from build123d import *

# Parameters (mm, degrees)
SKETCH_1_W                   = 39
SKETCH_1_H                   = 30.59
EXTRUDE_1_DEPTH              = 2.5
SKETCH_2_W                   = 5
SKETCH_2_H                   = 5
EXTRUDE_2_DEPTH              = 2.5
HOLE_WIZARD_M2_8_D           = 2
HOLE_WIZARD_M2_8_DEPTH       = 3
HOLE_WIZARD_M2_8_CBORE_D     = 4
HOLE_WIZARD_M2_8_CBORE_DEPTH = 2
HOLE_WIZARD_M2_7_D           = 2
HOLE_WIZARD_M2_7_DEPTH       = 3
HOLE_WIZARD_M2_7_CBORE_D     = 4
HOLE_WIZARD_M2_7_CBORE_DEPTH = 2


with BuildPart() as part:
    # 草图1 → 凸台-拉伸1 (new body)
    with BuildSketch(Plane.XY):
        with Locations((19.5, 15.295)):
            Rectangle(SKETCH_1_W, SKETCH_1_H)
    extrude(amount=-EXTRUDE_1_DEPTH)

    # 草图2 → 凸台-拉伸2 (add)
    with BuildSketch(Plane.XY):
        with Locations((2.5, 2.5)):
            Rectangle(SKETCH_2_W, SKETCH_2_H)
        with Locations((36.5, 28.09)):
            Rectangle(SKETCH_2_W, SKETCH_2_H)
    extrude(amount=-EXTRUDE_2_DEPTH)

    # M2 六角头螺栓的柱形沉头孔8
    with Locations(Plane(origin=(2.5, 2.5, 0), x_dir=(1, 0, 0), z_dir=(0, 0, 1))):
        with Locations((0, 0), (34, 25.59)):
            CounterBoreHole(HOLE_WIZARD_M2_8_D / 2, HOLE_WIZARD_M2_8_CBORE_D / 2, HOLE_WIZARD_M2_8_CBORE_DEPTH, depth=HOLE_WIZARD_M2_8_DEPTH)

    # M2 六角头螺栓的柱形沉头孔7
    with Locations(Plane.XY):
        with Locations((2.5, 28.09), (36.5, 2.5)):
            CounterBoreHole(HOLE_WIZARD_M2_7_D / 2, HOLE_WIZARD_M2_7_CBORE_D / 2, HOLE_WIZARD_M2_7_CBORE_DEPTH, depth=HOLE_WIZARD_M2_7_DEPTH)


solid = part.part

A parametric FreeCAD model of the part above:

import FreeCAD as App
import Part
import Sketcher
from FreeCAD import Vector
Q = App.Units.Quantity

doc = App.newDocument("Part")
body = doc.addObject("PartDesign::Body", "Body")

# Sketch on XY plane
sketch1 = body.newObject("Sketcher::SketchObject", "Sketch")
sketch1.AttachmentSupport = (doc.getObject("XY_Plane"), [""])
sketch1.MapMode = "FlatFace"
sketch1.addGeometry([
    Part.LineSegment(Vector(0, 31, 0), Vector(0, 0, 0)),
    Part.LineSegment(Vector(0, 0, 0), Vector(39, 0, 0)),
    Part.LineSegment(Vector(39, 0, 0), Vector(39, 31, 0)),
    Part.LineSegment(Vector(39, 31, 0), Vector(0, 31, 0)),
], False)
sketch1.addConstraint([
    Sketcher.Constraint("Coincident", 0, 2, 1, 1),
    Sketcher.Constraint("Coincident", 1, 2, 2, 1),
    Sketcher.Constraint("Coincident", 2, 2, 3, 1),
    Sketcher.Constraint("Coincident", 3, 2, 0, 1),
    Sketcher.Constraint("Vertical", 0),
    Sketcher.Constraint("Horizontal", 1),
    Sketcher.Constraint("Vertical", 2),
    Sketcher.Constraint("Horizontal", 3),
    Sketcher.Constraint("Coincident", 0, 2, -1, 1),
    Sketcher.Constraint("DistanceX", 1, 1, 1, 2, Q("39 mm")),
    Sketcher.Constraint("DistanceY", 0, 2, 0, 1, Q("30.59 mm")),
])
pad1 = body.newObject("PartDesign::Pad", "Pad")
pad1.Profile = sketch1
pad1.Length = 2.5
pad1.Reversed = True

# Sketch on XY plane
sketch2 = body.newObject("Sketcher::SketchObject", "Sketch001")
sketch2.AttachmentSupport = (doc.getObject("XY_Plane"), [""])
sketch2.MapMode = "FlatFace"
sketch2.addGeometry([
    Part.LineSegment(Vector(0, 5, 0), Vector(0, 0, 0)),  # 0
    Part.LineSegment(Vector(0, 0, 0), Vector(5, 0, 0)),  # 1
    Part.LineSegment(Vector(5, 0, 0), Vector(5, 5, 0)),  # 2
    Part.LineSegment(Vector(5, 5, 0), Vector(0, 5, 0)),  # 3
    Part.LineSegment(Vector(34, 31, 0), Vector(34, 26, 0)),  # 4
    Part.LineSegment(Vector(34, 26, 0), Vector(39, 26, 0)),  # 5
    Part.LineSegment(Vector(39, 26, 0), Vector(39, 31, 0)),  # 6
    Part.LineSegment(Vector(39, 31, 0), Vector(34, 31, 0)),  # 7
], False)
sketch2.addConstraint([
    Sketcher.Constraint("Coincident", 0, 2, 1, 1),
    Sketcher.Constraint("Coincident", 1, 2, 2, 1),
    Sketcher.Constraint("Coincident", 2, 2, 3, 1),
    Sketcher.Constraint("Coincident", 3, 2, 0, 1),
    Sketcher.Constraint("Coincident", 4, 2, 5, 1),
    Sketcher.Constraint("Coincident", 5, 2, 6, 1),
    Sketcher.Constraint("Coincident", 6, 2, 7, 1),
    Sketcher.Constraint("Coincident", 7, 2, 4, 1),
    Sketcher.Constraint("Vertical", 0),
    Sketcher.Constraint("Horizontal", 1),
    Sketcher.Constraint("Vertical", 2),
    Sketcher.Constraint("Horizontal", 3),
    Sketcher.Constraint("Vertical", 4),
    Sketcher.Constraint("Horizontal", 5),
    Sketcher.Constraint("Vertical", 6),
    Sketcher.Constraint("Horizontal", 7),
    Sketcher.Constraint("Coincident", 0, 2, -1, 1),
    Sketcher.Constraint("Equal", 3, 5),
    Sketcher.Constraint("Equal", 7, 0),
    Sketcher.Constraint("Equal", 2, 4),
    Sketcher.Constraint("DistanceX", 1, 1, 1, 2, Q("5 mm")),
    Sketcher.Constraint("DistanceX", -1, 1, 4, 2, Q("34 mm")),
    Sketcher.Constraint("DistanceY", -1, 1, 4, 2, Q("25.59 mm")),
])
pad2 = body.newObject("PartDesign::Pad", "Pad001")
pad2.Profile = sketch2
pad2.Length = 2.5
pad2.Reversed = True

# Sketch on XY plane
sketch3 = body.newObject("Sketcher::SketchObject", "Sketch002")
sketch3.AttachmentSupport = (doc.getObject("XY_Plane"), [""])
sketch3.MapMode = "FlatFace"
sketch3.addGeometry([
    Part.Circle(Vector(2.5, 2.5, 0), Vector(0, 0, 1), 1),
    Part.Circle(Vector(36.5, 28.1, 0), Vector(0, 0, 1), 1),
], False)
sketch3.addConstraint([
    Sketcher.Constraint("Equal", 0, 1),
    Sketcher.Constraint("Diameter", 0, Q("2 mm")),
    Sketcher.Constraint("DistanceX", 0, 3, 1, 3, Q("34 mm")),
    Sketcher.Constraint("DistanceX", -1, 1, 0, 3, Q("2.5 mm")),
    Sketcher.Constraint("DistanceY", -1, 1, 0, 3, Q("2.5 mm")),
    Sketcher.Constraint("DistanceY", -1, 1, 1, 3, Q("28.09 mm")),
])
doc.recompute()
hole = body.newObject("PartDesign::Hole", "Hole")
hole.Profile = sketch3
hole.ThreadType = "None"
hole.Diameter = 2
hole.DepthType = "Dimension"
hole.Depth = 3
hole.DrillPoint = "Flat"
hole.HoleCutType = "Counterbore"
hole.HoleCutDiameter = 4
hole.HoleCutDepth = 2

# Sketch on XY plane
sketch4 = body.newObject("Sketcher::SketchObject", "Sketch003")
sketch4.AttachmentSupport = (doc.getObject("XY_Plane"), [""])
sketch4.MapMode = "FlatFace"
sketch4.addGeometry([
    Part.Circle(Vector(2.5, 28.1, 0), Vector(0, 0, 1), 1),
    Part.Circle(Vector(36.5, 2.5, 0), Vector(0, 0, 1), 1),
], False)
sketch4.addConstraint([
    Sketcher.Constraint("Equal", 0, 1),
    Sketcher.Constraint("Diameter", 0, Q("2 mm")),
    Sketcher.Constraint("DistanceX", 0, 3, 1, 3, Q("34 mm")),
    Sketcher.Constraint("DistanceX", -1, 1, 0, 3, Q("2.5 mm")),
    Sketcher.Constraint("DistanceY", -1, 1, 1, 3, Q("2.5 mm")),
    Sketcher.Constraint("DistanceY", -1, 1, 0, 3, Q("28.09 mm")),
])
doc.recompute()
hole2 = body.newObject("PartDesign::Hole", "Hole001")
hole2.Profile = sketch4
hole2.ThreadType = "None"
hole2.Diameter = 2
hole2.DepthType = "Dimension"
hole2.Depth = 3
hole2.DrillPoint = "Flat"
hole2.HoleCutType = "Counterbore"
hole2.HoleCutDiameter = 4
hole2.HoleCutDepth = 2

doc.recompute()
